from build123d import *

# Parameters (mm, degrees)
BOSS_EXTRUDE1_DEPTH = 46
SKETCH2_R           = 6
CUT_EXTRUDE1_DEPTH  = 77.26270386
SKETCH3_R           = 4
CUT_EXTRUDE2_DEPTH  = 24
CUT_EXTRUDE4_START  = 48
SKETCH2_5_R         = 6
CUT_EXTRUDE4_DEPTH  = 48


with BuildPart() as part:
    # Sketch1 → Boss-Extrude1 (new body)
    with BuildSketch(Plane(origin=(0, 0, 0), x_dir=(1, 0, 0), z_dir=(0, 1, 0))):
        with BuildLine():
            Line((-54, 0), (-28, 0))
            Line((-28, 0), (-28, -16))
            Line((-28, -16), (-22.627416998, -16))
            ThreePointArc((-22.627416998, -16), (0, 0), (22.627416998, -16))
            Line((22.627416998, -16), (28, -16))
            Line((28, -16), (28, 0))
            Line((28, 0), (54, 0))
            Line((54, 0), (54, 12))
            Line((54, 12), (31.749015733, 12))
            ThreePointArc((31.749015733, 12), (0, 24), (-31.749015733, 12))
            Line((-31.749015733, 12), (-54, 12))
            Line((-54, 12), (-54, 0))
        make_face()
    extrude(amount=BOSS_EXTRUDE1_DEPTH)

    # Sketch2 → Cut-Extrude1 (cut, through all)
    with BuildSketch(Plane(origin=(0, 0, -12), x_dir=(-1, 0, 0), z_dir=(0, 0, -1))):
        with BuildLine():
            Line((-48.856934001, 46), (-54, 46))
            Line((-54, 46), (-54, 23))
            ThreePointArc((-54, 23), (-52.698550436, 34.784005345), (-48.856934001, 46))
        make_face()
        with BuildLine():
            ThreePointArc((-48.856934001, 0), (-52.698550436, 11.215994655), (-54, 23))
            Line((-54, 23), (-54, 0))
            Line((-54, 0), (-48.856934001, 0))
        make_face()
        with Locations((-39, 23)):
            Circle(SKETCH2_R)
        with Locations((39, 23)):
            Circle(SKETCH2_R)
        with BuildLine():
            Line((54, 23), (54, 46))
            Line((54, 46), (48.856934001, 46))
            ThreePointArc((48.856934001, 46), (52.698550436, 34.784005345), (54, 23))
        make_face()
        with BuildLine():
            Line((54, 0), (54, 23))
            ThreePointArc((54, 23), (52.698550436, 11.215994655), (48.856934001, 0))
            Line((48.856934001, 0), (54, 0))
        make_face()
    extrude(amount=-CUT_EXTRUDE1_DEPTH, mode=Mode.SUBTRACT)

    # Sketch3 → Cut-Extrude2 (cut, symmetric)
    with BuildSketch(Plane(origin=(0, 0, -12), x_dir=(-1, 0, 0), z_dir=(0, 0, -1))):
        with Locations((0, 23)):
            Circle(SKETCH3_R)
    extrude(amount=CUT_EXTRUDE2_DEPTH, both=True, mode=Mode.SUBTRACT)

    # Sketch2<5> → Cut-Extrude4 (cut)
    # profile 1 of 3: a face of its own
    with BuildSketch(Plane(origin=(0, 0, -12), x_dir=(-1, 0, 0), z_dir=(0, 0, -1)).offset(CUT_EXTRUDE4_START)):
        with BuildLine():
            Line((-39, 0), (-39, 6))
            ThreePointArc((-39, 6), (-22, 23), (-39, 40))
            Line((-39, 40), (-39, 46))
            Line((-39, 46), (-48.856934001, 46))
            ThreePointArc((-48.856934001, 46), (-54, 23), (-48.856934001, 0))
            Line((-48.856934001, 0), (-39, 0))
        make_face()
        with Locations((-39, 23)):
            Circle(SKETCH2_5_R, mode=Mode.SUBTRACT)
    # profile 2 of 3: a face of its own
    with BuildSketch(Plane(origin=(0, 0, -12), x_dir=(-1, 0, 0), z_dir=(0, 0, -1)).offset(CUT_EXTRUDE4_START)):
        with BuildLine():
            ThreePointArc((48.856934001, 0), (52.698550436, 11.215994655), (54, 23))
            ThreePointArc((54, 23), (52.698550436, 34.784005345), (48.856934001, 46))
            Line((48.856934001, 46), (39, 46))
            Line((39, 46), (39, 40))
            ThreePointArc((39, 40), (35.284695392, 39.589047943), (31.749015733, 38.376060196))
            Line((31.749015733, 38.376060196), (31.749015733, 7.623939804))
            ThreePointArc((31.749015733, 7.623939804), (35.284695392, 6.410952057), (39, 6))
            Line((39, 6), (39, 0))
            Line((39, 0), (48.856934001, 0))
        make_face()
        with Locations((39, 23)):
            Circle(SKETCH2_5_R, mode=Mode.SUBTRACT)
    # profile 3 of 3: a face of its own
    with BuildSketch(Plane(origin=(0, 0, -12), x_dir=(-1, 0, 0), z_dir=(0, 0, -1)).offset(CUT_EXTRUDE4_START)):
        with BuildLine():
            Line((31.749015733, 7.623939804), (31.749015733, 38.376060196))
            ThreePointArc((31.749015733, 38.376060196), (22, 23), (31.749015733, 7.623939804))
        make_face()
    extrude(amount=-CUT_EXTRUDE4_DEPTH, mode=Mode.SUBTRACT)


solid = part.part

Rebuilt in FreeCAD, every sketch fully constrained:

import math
import FreeCAD as App
import Part
import Sketcher

V = App.Vector

doc = App.newDocument("Part")
body = doc.addObject("PartDesign::Body", "Body")

# Sketch on XZ plane
sketch1 = body.newObject("Sketcher::SketchObject", "Sketch")
sketch1.AttachmentSupport = (doc.getObject("XZ_Plane"), [""])
sketch1.MapMode = "FlatFace"
sketch1.addGeometry(Part.LineSegment(V(-54, 0, 0), V(-28, 0, 0)), False)
sketch1.addGeometry(Part.LineSegment(V(-28, 0, 0), V(-28, 16, 0)), False)
sketch1.addGeometry(Part.LineSegment(V(-28, 16, 0), V(-23, 16, 0)), False)
sketch1.addGeometry(Part.ArcOfCircle(Part.Circle(V(0, 24, 0), V(0, 0, 1), 24), math.radians(-161), math.radians(-19)), False)
sketch1.addGeometry(Part.LineSegment(V(23, 16, 0), V(28, 16, 0)), False)
sketch1.addGeometry(Part.LineSegment(V(28, 16, 0), V(28, 0, 0)), False)
sketch1.addGeometry(Part.LineSegment(V(28, 0, 0), V(54, 0, 0)), False)
sketch1.addGeometry(Part.LineSegment(V(54, 0, 0), V(54, -12, 0)), False)
sketch1.addGeometry(Part.LineSegment(V(54, -12, 0), V(32, -12, 0)), False)
sketch1.addGeometry(Part.ArcOfCircle(Part.Circle(V(0, 24, 0), V(0, 0, 1), 48), math.radians(-131), math.radians(-49)), False)
sketch1.addGeometry(Part.LineSegment(V(-32, -12, 0), V(-54, -12, 0)), False)
sketch1.addGeometry(Part.LineSegment(V(-54, -12, 0), V(-54, 0, 0)), False)
sketch1.addConstraint(Sketcher.Constraint("Coincident", 0, 2, 1, 1))
sketch1.addConstraint(Sketcher.Constraint("Coincident", 1, 2, 2, 1))
sketch1.addConstraint(Sketcher.Constraint("Coincident", 2, 2, 3, 1))
sketch1.addConstraint(Sketcher.Constraint("Coincident", 3, 2, 4, 1))
sketch1.addConstraint(Sketcher.Constraint("Coincident", 4, 2, 5, 1))
sketch1.addConstraint(Sketcher.Constraint("Coincident", 5, 2, 6, 1))
sketch1.addConstraint(Sketcher.Constraint("Coincident", 6, 2, 7, 1))
sketch1.addConstraint(Sketcher.Constraint("Coincident", 7, 2, 8, 1))
sketch1.addConstraint(Sketcher.Constraint("Coincident", 8, 2, 9, 2))
sketch1.addConstraint(Sketcher.Constraint("Coincident", 9, 1, 10, 1))
sketch1.addConstraint(Sketcher.Constraint("Coincident", 10, 2, 11, 1))
sketch1.addConstraint(Sketcher.Constraint("Coincident", 11, 2, 0, 1))
sketch1.addConstraint(Sketcher.Constraint("Horizontal", 0))
sketch1.addConstraint(Sketcher.Constraint("Vertical", 1))
sketch1.addConstraint(Sketcher.Constraint("Horizontal", 2))
sketch1.addConstraint(Sketcher.Constraint("Horizontal", 4))
sketch1.addConstraint(Sketcher.Constraint("Vertical", 5))
sketch1.addConstraint(Sketcher.Constraint("Horizontal", 6))
sketch1.addConstraint(Sketcher.Constraint("Vertical", 7))
sketch1.addConstraint(Sketcher.Constraint("Horizontal", 8))
sketch1.addConstraint(Sketcher.Constraint("Horizontal", 10))
sketch1.addConstraint(Sketcher.Constraint("Vertical", 11))
sketch1.addConstraint(Sketcher.Constraint("Coincident", 9, 3, 3, 3))
sketch1.addConstraint(Sketcher.Constraint("Symmetric", 0, 2, 5, 2, -1, 1))
sketch1.addConstraint(Sketcher.Constraint("Symmetric", 2, 2, 3, 2, -2))
sketch1.addConstraint(Sketcher.Constraint("Symmetric", 7, 2, 10, 2, -2))
sketch1.addConstraint(Sketcher.Constraint("PointOnObject", 0, 2, -1))
sketch1.addConstraint(Sketcher.Constraint("Radius", 3, 24.0))
sketch1.addConstraint(Sketcher.Constraint("Radius", 9, 48.0))
sketch1.addConstraint(Sketcher.Constraint("DistanceX", 0, 1, 0, 2, 26.0))
sketch1.addConstraint(Sketcher.Constraint("DistanceY", 1, 1, 1, 2, 16.0))
sketch1.addConstraint(Sketcher.Constraint("DistanceY", 7, 2, 7, 1, 12.0))
sketch1.addConstraint(Sketcher.Constraint("DistanceY", -1, 1, 3, 3, 24.0))
sketch1.addConstraint(Sketcher.Constraint("DistanceX", 0, 2, -1, 1, 28.0))
pad1 = body.newObject("PartDesign::Pad", "Pad")
pad1.Profile = sketch1
pad1.Length = 46
pad1.Reversed = True

# Sketch on XY plane
sketch2 = body.newObject("Sketcher::SketchObject", "Sketch001")
sketch2.AttachmentSupport = (doc.getObject("XY_Plane"), [""])
sketch2.MapMode = "FlatFace"
sketch2.AttachmentOffset = App.Placement(V(0, 0, -12), App.Rotation())
sketch2.addGeometry(Part.LineSegment(V(49, 46, 0), V(54, 46, 0)), False)
sketch2.addGeometry(Part.LineSegment(V(54, 46, 0), V(54, 23, 0)), False)
sketch2.addGeometry(Part.ArcOfCircle(Part.Circle(V(0, 23, 0), V(0, 0, 1), 54), math.radians(0), math.radians(25)), False)
sketch2.addGeometry(Part.ArcOfCircle(Part.Circle(V(0, 23, 0), V(0, 0, 1), 54), math.radians(-25), math.radians(0)), False)
sketch2.addGeometry(Part.LineSegment(V(54, 23, 0), V(54, 0, 0)), False)
sketch2.addGeometry(Part.LineSegment(V(54, 0, 0), V(49, 0, 0)), False)
sketch2.addGeometry(Part.Circle(V(39, 23, 0), V(0, 0, 1), 6), False)
sketch2.addGeometry(Part.Circle(V(-39, 23, 0), V(0, 0, 1), 6), False)
sketch2.addGeometry(Part.LineSegment(V(-54, 23, 0), V(-54, 46, 0)), False)
sketch2.addGeometry(Part.LineSegment(V(-54, 46, 0), V(-49, 46, 0)), False)
sketch2.addGeometry(Part.ArcOfCircle(Part.Circle(V(0, 23, 0), V(0, 0, 1), 54), math.radians(155), math.radians(180)), False)
sketch2.addGeometry(Part.LineSegment(V(-54, 0, 0), V(-54, 23, 0)), False)
sketch2.addGeometry(Part.ArcOfCircle(Part.Circle(V(0, 23, 0), V(0, 0, 1), 54), math.radians(180), math.radians(205)), False)
sketch2.addGeometry(Part.LineSegment(V(-49, 0, 0), V(-54, 0, 0)), False)
sketch2.addConstraint(Sketcher.Constraint("Coincident", 0, 2, 1, 1))
sketch2.addConstraint(Sketcher.Constraint("Tangent", 1, 2, 2, 1))
sketch2.addConstraint(Sketcher.Constraint("Coincident", 2, 2, 0, 1))
sketch2.addConstraint(Sketcher.Constraint("Tangent", 3, 2, 4, 1))
sketch2.addConstraint(Sketcher.Constraint("Coincident", 4, 2, 5, 1))
sketch2.addConstraint(Sketcher.Constraint("Coincident", 5, 2, 3, 1))
sketch2.addConstraint(Sketcher.Constraint("Coincident", 8, 2, 9, 1))
sketch2.addConstraint(Sketcher.Constraint("Coincident", 9, 2, 10, 1))
sketch2.addConstraint(Sketcher.Constraint("Tangent", 10, 2, 8, 1))
sketch2.addConstraint(Sketcher.Constraint("Tangent", 11, 2, 12, 1))
sketch2.addConstraint(Sketcher.Constraint("Coincident", 12, 2, 13, 1))
sketch2.addConstraint(Sketcher.Constraint("Coincident", 13, 2, 11, 1))
sketch2.addConstraint(Sketcher.Constraint("Horizontal", 0))
sketch2.addConstraint(Sketcher.Constraint("Vertical", 1))
sketch2.addConstraint(Sketcher.Constraint("Vertical", 4))
sketch2.addConstraint(Sketcher.Constraint("Horizontal", 5))
sketch2.addConstraint(Sketcher.Constraint("Vertical", 8))
sketch2.addConstraint(Sketcher.Constraint("Horizontal", 9))
sketch2.addConstraint(Sketcher.Constraint("Vertical", 11))
sketch2.addConstraint(Sketcher.Constraint("Horizontal", 13))
sketch2.addConstraint(Sketcher.Constraint("Coincident", 3, 3, 2, 3))
sketch2.addConstraint(Sketcher.Constraint("Coincident", 10, 3, 2, 3))
sketch2.addConstraint(Sketcher.Constraint("Coincident", 12, 3, 2, 3))
sketch2.addConstraint(Sketcher.Constraint("Equal", 2, 3))
sketch2.addConstraint(Sketcher.Constraint("Equal", 6, 7))
sketch2.addConstraint(Sketcher.Constraint("Equal", 3, 10))
sketch2.addConstraint(Sketcher.Constraint("Equal", 10, 12))
sketch2.addConstraint(Sketcher.Constraint("Symmetric", 5, 2, 12, 2, -1, 1))
sketch2.addConstraint(Sketcher.Constraint("Symmetric", 6, 3, 7, 3, -2))
sketch2.addConstraint(Sketcher.Constraint("Symmetric", 0, 2, 8, 2, -2))
sketch2.addConstraint(Sketcher.Constraint("Horizontal", 3, 3, 6, 3))
sketch2.addConstraint(Sketcher.Constraint("Vertical", 2, 2, 5, 2))
sketch2.addConstraint(Sketcher.Constraint("Diameter", 6, 12.0))
sketch2.addConstraint(Sketcher.Constraint("Radius", 2, 54.0))
sketch2.addConstraint(Sketcher.Constraint("DistanceY", 1, 2, 1, 1, 23.0))
sketch2.addConstraint(Sketcher.Constraint("DistanceX", -1, 1, 6, 3, 39.0))
pocket1 = body.newObject("PartDesign::Pocket", "Pocket")
pocket1.Profile = sketch2
pocket1.Type = "ThroughAll"
pocket1.Reversed = True

# Sketch on XY plane
sketch3 = body.newObject("Sketcher::SketchObject", "Sketch002")
sketch3.AttachmentSupport = (doc.getObject("XY_Plane"), [""])
sketch3.MapMode = "FlatFace"
sketch3.AttachmentOffset = App.Placement(V(0, 0, -12), App.Rotation())
sketch3.addGeometry(Part.Circle(V(0, 23, 0), V(0, 0, 1), 4), False)
sketch3.addConstraint(Sketcher.Constraint("PointOnObject", 0, 3, -2))
sketch3.addConstraint(Sketcher.Constraint("Diameter", 0, 8.0))
sketch3.addConstraint(Sketcher.Constraint("DistanceY", -1, 1, 0, 3, 23.0))
pocket2 = body.newObject("PartDesign::Pocket", "Pocket001")
pocket2.Profile = sketch3
pocket2.Length = 48
pocket2.Midplane = True

# Sketch on XY plane
sketch4 = body.newObject("Sketcher::SketchObject", "Sketch003")
sketch4.AttachmentSupport = (doc.getObject("XY_Plane"), [""])
sketch4.MapMode = "FlatFace"
sketch4.AttachmentOffset = App.Placement(V(0, 0, -60), App.Rotation())
sketch4.addGeometry(Part.LineSegment(V(39, 0, 0), V(39, 6, 0)), False)
sketch4.addGeometry(Part.ArcOfCircle(Part.Circle(V(39, 23, 0), V(0, 0, 1), 17), math.radians(90), math.radians(270)), False)
sketch4.addGeometry(Part.LineSegment(V(39, 40, 0), V(39, 46, 0)), False)
sketch4.addGeometry(Part.LineSegment(V(39, 46, 0), V(49, 46, 0)), False)
sketch4.addGeometry(Part.ArcOfCircle(Part.Circle(V(0, 23, 0), V(0, 0, 1), 54), math.radians(-25), math.radians(25)), False)
sketch4.addGeometry(Part.LineSegment(V(49, 0, 0), V(39, 0, 0)), False)
sketch4.addGeometry(Part.Circle(V(39, 23, 0), V(0, 0, 1), 6), False)
sketch4.addGeometry(Part.ArcOfCircle(Part.Circle(V(0, 23, 0), V(0, 0, 1), 54), math.radians(180), math.radians(205)), False)
sketch4.addGeometry(Part.ArcOfCircle(Part.Circle(V(0, 23, 0), V(0, 0, 1), 54), math.radians(155), math.radians(180)), False)
sketch4.addGeometry(Part.LineSegment(V(-49, 46, 0), V(-39, 46, 0)), False)
sketch4.addGeometry(Part.LineSegment(V(-39, 46, 0), V(-39, 40, 0)), False)
sketch4.addGeometry(Part.ArcOfCircle(Part.Circle(V(-39, 23, 0), V(0, 0, 1), 17), math.radians(65), math.radians(90)), False)
sketch4.addGeometry(Part.ArcOfCircle(Part.Circle(V(-39, 23, 0), V(0, 0, 1), 17), math.radians(-65), math.radians(65)), False)
sketch4.addGeometry(Part.ArcOfCircle(Part.Circle(V(-39, 23, 0), V(0, 0, 1), 17), math.radians(-90), math.radians(-65)), False)
sketch4.addGeometry(Part.LineSegment(V(-39, 6, 0), V(-39, 0, 0)), False)
sketch4.addGeometry(Part.LineSegment(V(-39, 0, 0), V(-49, 0, 0)), False)
sketch4.addGeometry(Part.Circle(V(-39, 23, 0), V(0, 0, 1), 6), False)
sketch4.addConstraint(Sketcher.Constraint("Coincident", 0, 2, 1, 2))
sketch4.addConstraint(Sketcher.Constraint("Coincident", 1, 1, 2, 1))
sketch4.addConstraint(Sketcher.Constraint("Coincident", 2, 2, 3, 1))
sketch4.addConstraint(Sketcher.Constraint("Coincident", 3, 2, 4, 2))
sketch4.addConstraint(Sketcher.Constraint("Coincident", 4, 1, 5, 1))
sketch4.addConstraint(Sketcher.Constraint("Coincident", 5, 2, 0, 1))
sketch4.addConstraint(Sketcher.Constraint("Tangent", 7, 1, 8, 2))
sketch4.addConstraint(Sketcher.Constraint("Coincident", 8, 1, 9, 1))
sketch4.addConstraint(Sketcher.Constraint("Coincident", 9, 2, 10, 1))
sketch4.addConstraint(Sketcher.Constraint("Coincident", 10, 2, 11, 2))
sketch4.addConstraint(Sketcher.Constraint("Tangent", 11, 1, 12, 2))
sketch4.addConstraint(Sketcher.Constraint("Tangent", 12, 1, 13, 2))
sketch4.addConstraint(Sketcher.Constraint("Coincident", 13, 1, 14, 1))
sketch4.addConstraint(Sketcher.Constraint("Coincident", 14, 2, 15, 1))
sketch4.addConstraint(Sketcher.Constraint("Coincident", 15, 2, 7, 2))
sketch4.addConstraint(Sketcher.Constraint("Vertical", 0))
sketch4.addConstraint(Sketcher.Constraint("Vertical", 2))
sketch4.addConstraint(Sketcher.Constraint("Horizontal", 3))
sketch4.addConstraint(Sketcher.Constraint("Horizontal", 5))
sketch4.addConstraint(Sketcher.Constraint("Horizontal", 9))
sketch4.addConstraint(Sketcher.Constraint("Vertical", 10))
sketch4.addConstraint(Sketcher.Constraint("Vertical", 14))
sketch4.addConstraint(Sketcher.Constraint("Horizontal", 15))
sketch4.addConstraint(Sketcher.Constraint("Coincident", 6, 3, 1, 3))
sketch4.addConstraint(Sketcher.Constraint("Coincident", 7, 3, 4, 3))
sketch4.addConstraint(Sketcher.Constraint("Coincident", 13, 3, 11, 3))
sketch4.addConstraint(Sketcher.Constraint("Coincident", 16, 3, 11, 3))
sketch4.addConstraint(Sketcher.Constraint("Equal", 4, 7))
sketch4.addConstraint(Sketcher.Constraint("Equal", 7, 8))
sketch4.addConstraint(Sketcher.Constraint("Equal", 1, 11))
sketch4.addConstraint(Sketcher.Constraint("Equal", 6, 16))
sketch4.addConstraint(Sketcher.Constraint("Symmetric", 5, 2, 14, 2, -1, 1))
sketch4.addConstraint(Sketcher.Constraint("Symmetric", 1, 3, 11, 3, -2))
sketch4.addConstraint(Sketcher.Constraint("Symmetric", 3, 2, 8, 1, -2))
sketch4.addConstraint(Sketcher.Constraint("PointOnObject", 4, 1, -1))
sketch4.addConstraint(Sketcher.Constraint("Horizontal", 1, 3, 4, 3))
sketch4.addConstraint(Sketcher.Constraint("Horizontal", 16, 3, 7, 1))
sketch4.addConstraint(Sketcher.Constraint("Vertical", 6, 3, 0, 2))
sketch4.addConstraint(Sketcher.Constraint("Vertical", 0, 2, 1, 1))
sketch4.addConstraint(Sketcher.Constraint("Vertical", 3, 2, 4, 1))
sketch4.addConstraint(Sketcher.Constraint("Vertical", 16, 3, 9, 2))
sketch4.addConstraint(Sketcher.Constraint("Vertical", 11, 1, 12, 1))
sketch4.addConstraint(Sketcher.Constraint("Diameter", 6, 12.0))
sketch4.addConstraint(Sketcher.Constraint("Radius", 1, 17.0))
sketch4.addConstraint(Sketcher.Constraint("Radius", 4, 54.0))
sketch4.addConstraint(Sketcher.Constraint("DistanceY", 0, 1, 0, 2, 6.0))
sketch4.addConstraint(Sketcher.Constraint("DistanceX", -1, 1, 1, 3, 39.0))
sketch4.addConstraint(Sketcher.Constraint("DistanceY", -1, 1, 11, 1, 38.37606))
pocket3 = body.newObject("PartDesign::Pocket", "Pocket002")
pocket3.Profile = sketch4
pocket3.Length = 48
pocket3.Reversed = True

doc.recompute()
